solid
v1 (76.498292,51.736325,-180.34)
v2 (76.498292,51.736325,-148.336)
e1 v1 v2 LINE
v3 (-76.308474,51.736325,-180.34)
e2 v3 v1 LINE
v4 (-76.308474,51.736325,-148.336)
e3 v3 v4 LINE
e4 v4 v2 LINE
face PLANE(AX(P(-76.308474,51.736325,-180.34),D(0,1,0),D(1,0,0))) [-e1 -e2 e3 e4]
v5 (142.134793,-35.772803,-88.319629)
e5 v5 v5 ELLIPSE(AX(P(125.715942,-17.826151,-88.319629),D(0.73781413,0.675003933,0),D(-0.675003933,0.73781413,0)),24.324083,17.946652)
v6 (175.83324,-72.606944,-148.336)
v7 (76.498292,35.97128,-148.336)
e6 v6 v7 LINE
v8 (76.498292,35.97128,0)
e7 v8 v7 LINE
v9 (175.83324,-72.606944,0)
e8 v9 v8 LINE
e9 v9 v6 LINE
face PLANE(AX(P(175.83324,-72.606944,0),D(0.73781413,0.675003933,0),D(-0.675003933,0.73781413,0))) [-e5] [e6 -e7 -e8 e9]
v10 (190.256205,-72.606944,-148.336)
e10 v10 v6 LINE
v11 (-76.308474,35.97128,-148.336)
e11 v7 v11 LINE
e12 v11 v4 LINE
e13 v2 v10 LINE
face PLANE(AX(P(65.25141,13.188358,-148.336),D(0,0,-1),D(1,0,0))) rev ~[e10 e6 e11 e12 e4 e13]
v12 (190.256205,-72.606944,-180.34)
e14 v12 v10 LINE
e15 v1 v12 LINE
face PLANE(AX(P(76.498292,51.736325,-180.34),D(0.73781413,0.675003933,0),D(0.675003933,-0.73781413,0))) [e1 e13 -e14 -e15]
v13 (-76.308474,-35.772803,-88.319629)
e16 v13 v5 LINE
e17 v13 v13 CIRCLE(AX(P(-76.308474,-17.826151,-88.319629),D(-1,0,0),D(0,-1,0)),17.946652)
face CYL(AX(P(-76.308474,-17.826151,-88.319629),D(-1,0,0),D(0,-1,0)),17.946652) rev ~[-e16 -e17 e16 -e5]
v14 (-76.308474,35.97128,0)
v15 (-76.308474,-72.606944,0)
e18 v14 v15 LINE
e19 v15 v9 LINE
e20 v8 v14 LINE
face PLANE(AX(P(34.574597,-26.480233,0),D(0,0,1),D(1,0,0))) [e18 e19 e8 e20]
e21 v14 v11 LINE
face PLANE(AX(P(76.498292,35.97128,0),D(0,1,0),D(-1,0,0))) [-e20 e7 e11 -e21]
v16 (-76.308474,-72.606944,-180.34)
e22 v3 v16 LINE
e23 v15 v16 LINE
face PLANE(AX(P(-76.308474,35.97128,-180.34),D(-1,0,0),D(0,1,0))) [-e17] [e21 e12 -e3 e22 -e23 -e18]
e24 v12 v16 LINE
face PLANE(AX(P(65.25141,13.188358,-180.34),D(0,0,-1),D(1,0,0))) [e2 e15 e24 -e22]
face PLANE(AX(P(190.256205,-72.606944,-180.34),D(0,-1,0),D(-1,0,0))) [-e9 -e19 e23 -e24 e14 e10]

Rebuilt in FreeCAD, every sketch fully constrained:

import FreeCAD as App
import Part
import Sketcher

V = App.Vector
Q = App.Units.Quantity


def add_polygon(sketch, points):
    """Adds a closed chain of lines whose ends are joined by coincident constraints."""
    first, n = sketch.GeometryCount, len(points)
    for a, b in zip(points, points[1:] + points[:1]):
        sketch.addGeometry(Part.LineSegment(App.Vector(*a, 0), App.Vector(*b, 0)), False)
    for i in range(n):
        sketch.addConstraint(Sketcher.Constraint("Coincident", first + i, 2, first + (i + 1) % n, 1))

doc = App.newDocument("Part")
body = doc.addObject("PartDesign::Body", "Body")

sketch1 = body.newObject("Sketcher::SketchObject", "Sketch")
sketch1.AttachmentSupport = (doc.getObject("XY_Plane"), [""])
sketch1.MapMode = "FlatFace"
add_polygon(sketch1, [(76, 36), (-76, 36), (-76, -73), (176, -73)])
sketch1.addConstraint([
    Sketcher.Constraint("Horizontal", 0),
    Sketcher.Constraint("Vertical", 1),
    Sketcher.Constraint("Horizontal", 2),
    Sketcher.Constraint("Distance", 3, Q("147.162028 mm")),
    Sketcher.Constraint("DistanceX", 0, 2, 0, 1, Q("152.806766 mm")),
    Sketcher.Constraint("DistanceX", 2, 1, 2, 2, Q("252.141714 mm")),
    Sketcher.Constraint("DistanceY", -1, 1, 0, 2, Q("35.97128 mm")),
    Sketcher.Constraint("DistanceX", -1, 1, 2, 2, Q("175.83324 mm")),
])
pad1 = body.newObject("PartDesign::Pad", "Pad")
pad1.Profile = sketch1
pad1.Length = Q("7.1 in")
pad1.Reversed = True

sketch2 = body.newObject("Sketcher::SketchObject", "Sketch001")
sketch2.AttachmentSupport = (doc.getObject("XY_Plane"), [""])
sketch2.MapMode = "FlatFace"
sketch2.AttachmentOffset = App.Placement(V(0, 0, -7.1 * 25.4), App.Rotation())
add_polygon(sketch2, [(-76, 52), (76, 52), (190, -73), (176, -73), (76, 36), (-76, 36)])
sketch2.addConstraint([
    Sketcher.Constraint("Horizontal", 0),
    Sketcher.Constraint("Horizontal", 2),
    Sketcher.Constraint("Horizontal", 4),
    Sketcher.Constraint("Vertical", 5),
    Sketcher.Constraint("Parallel", 1, 3),
    Sketcher.Constraint("Vertical", 0, 2, 3, 2),
    Sketcher.Constraint("Distance", 1, Q("168.52926 mm")),
    Sketcher.Constraint("Distance", 3, Q("147.162028 mm")),
    Sketcher.Constraint("DistanceX", 0, 1, 0, 2, Q("152.806766 mm")),
    Sketcher.Constraint("DistanceX", 2, 2, 2, 1, Q("14.422965 mm")),
    Sketcher.Constraint("DistanceX", -1, 1, 2, 2, Q("175.83324 mm")),
    Sketcher.Constraint("DistanceY", -1, 1, 3, 2, Q("35.97128 mm")),
])
pad2 = body.newObject("PartDesign::Pad", "Pad001")
pad2.Profile = sketch2
pad2.Length = Q("1.26 in")

sketch3 = body.newObject("Sketcher::SketchObject", "Sketch002")
sketch3.AttachmentSupport = (doc.getObject("YZ_Plane"), [""])
sketch3.MapMode = "FlatFace"
sketch3.AttachmentOffset = App.Placement(V(0, 0, -76.308474), App.Rotation())
sketch3.addGeometry(Part.Circle(V(-18, -88, 0), V(0, 0, 1), 18), False)
sketch3.addConstraint([
    Sketcher.Constraint("Diameter", 0, Q("35.893304 mm")),
    Sketcher.Constraint("DistanceX", 0, 3, -1, 1, Q("17.826151 mm")),
    Sketcher.Constraint("DistanceY", 0, 3, -1, 1, Q("88.319629 mm")),
])
pocket1 = body.newObject("PartDesign::Pocket", "Pocket")
pocket1.Profile = sketch3
pocket1.Length = Q("13.4 in")
pocket1.Reversed = True

doc.recompute()
